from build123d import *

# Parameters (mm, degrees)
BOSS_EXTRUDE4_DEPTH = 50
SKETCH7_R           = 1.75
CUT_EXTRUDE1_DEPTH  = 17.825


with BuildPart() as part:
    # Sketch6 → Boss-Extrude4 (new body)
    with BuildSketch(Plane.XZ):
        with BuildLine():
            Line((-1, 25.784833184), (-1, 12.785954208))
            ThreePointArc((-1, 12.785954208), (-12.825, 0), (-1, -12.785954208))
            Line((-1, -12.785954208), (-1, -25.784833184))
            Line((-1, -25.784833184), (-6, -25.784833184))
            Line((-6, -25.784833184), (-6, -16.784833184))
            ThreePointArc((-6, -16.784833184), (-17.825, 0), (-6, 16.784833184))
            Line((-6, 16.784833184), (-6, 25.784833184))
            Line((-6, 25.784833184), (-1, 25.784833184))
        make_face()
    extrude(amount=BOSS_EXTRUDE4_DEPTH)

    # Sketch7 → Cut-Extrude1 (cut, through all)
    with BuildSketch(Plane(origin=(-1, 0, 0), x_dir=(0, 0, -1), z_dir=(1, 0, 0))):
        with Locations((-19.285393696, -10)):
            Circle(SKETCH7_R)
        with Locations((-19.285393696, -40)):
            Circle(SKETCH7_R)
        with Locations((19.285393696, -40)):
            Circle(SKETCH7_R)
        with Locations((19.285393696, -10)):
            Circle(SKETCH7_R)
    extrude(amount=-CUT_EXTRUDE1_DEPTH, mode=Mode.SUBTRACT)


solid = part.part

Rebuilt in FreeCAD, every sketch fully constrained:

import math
import FreeCAD as App
import Part
import Sketcher

V = App.Vector
Q = App.Units.Quantity

doc = App.newDocument("Part")
body = doc.addObject("PartDesign::Body", "Body")

# Sketch on XZ plane
sketch1 = body.newObject("Sketcher::SketchObject", "Sketch")
sketch1.AttachmentSupport = (doc.getObject("XZ_Plane"), [""])
sketch1.MapMode = "FlatFace"
sketch1.addGeometry(Part.LineSegment(V(-1, 13, 0), V(-1, 26, 0)), False)
sketch1.addGeometry(Part.LineSegment(V(-1, 26, 0), V(-6, 26, 0)), False)
sketch1.addGeometry(Part.LineSegment(V(-6, 26, 0), V(-6, 17, 0)), False)
sketch1.addGeometry(Part.ArcOfCircle(Part.Circle(V(0, 0, 0), V(0, 0, 1), 18), math.radians(110), math.radians(250)), False)
sketch1.addGeometry(Part.LineSegment(V(-6, -17, 0), V(-6, -26, 0)), False)
sketch1.addGeometry(Part.LineSegment(V(-6, -26, 0), V(-1, -26, 0)), False)
sketch1.addGeometry(Part.LineSegment(V(-1, -26, 0), V(-1, -13, 0)), False)
sketch1.addGeometry(Part.ArcOfCircle(Part.Circle(V(0, 0, 0), V(0, 0, 1), 13), math.radians(94), math.radians(266)), False)
sketch1.addConstraint(Sketcher.Constraint("Coincident", 0, 2, 1, 1))
sketch1.addConstraint(Sketcher.Constraint("Coincident", 1, 2, 2, 1))
sketch1.addConstraint(Sketcher.Constraint("Coincident", 2, 2, 3, 1))
sketch1.addConstraint(Sketcher.Constraint("Coincident", 3, 2, 4, 1))
sketch1.addConstraint(Sketcher.Constraint("Coincident", 4, 2, 5, 1))
sketch1.addConstraint(Sketcher.Constraint("Coincident", 5, 2, 6, 1))
sketch1.addConstraint(Sketcher.Constraint("Coincident", 6, 2, 7, 2))
sketch1.addConstraint(Sketcher.Constraint("Coincident", 7, 1, 0, 1))
sketch1.addConstraint(Sketcher.Constraint("Vertical", 0))
sketch1.addConstraint(Sketcher.Constraint("Horizontal", 1))
sketch1.addConstraint(Sketcher.Constraint("Vertical", 2))
sketch1.addConstraint(Sketcher.Constraint("Vertical", 4))
sketch1.addConstraint(Sketcher.Constraint("Horizontal", 5))
sketch1.addConstraint(Sketcher.Constraint("Vertical", 6))
sketch1.addConstraint(Sketcher.Constraint("Coincident", 3, 3, -1, 1))
sketch1.addConstraint(Sketcher.Constraint("Coincident", 7, 3, -1, 1))
sketch1.addConstraint(Sketcher.Constraint("Symmetric", 1, 2, 4, 2, -1))
sketch1.addConstraint(Sketcher.Constraint("Vertical", 0, 2, 5, 2))
sketch1.addConstraint(Sketcher.Constraint("DistanceX", 1, 2, 1, 1, Q("5 mm")))
sketch1.addConstraint(Sketcher.Constraint("DistanceY", 2, 2, 2, 1, Q("9 mm")))
sketch1.addConstraint(Sketcher.Constraint("DistanceX", 0, 2, -1, 1, Q("1 mm")))
sketch1.addConstraint(Sketcher.Constraint("Radius", 3, Q("17.825 mm")))
sketch1.addConstraint(Sketcher.Constraint("Radius", 7, Q("12.825 mm")))
pad1 = body.newObject("PartDesign::Pad", "Pad")
pad1.Profile = sketch1
pad1.Length = 50

# Sketch on YZ plane
sketch2 = body.newObject("Sketcher::SketchObject", "Sketch001")
sketch2.AttachmentSupport = (doc.getObject("YZ_Plane"), [""])
sketch2.MapMode = "FlatFace"
sketch2.AttachmentOffset = App.Placement(V(0, 0, -1), App.Rotation())
sketch2.addGeometry(Part.Circle(V(-10, 19.3, 0), V(0, 0, 1), 1.8), False)
sketch2.addGeometry(Part.Circle(V(-40, 19.3, 0), V(0, 0, 1), 1.8), False)
sketch2.addGeometry(Part.Circle(V(-40, -19.3, 0), V(0, 0, 1), 1.8), False)
sketch2.addGeometry(Part.Circle(V(-10, -19.3, 0), V(0, 0, 1), 1.8), False)
sketch2.addConstraint(Sketcher.Constraint("Equal", 0, 1))
sketch2.addConstraint(Sketcher.Constraint("Equal", 1, 2))
sketch2.addConstraint(Sketcher.Constraint("Equal", 2, 3))
sketch2.addConstraint(Sketcher.Constraint("Symmetric", 1, 3, 2, 3, -1))
sketch2.addConstraint(Sketcher.Constraint("Symmetric", 0, 3, 3, 3, -1))
sketch2.addConstraint(Sketcher.Constraint("Horizontal", 0, 3, 1, 3))
sketch2.addConstraint(Sketcher.Constraint("Diameter", 0, Q("3.5 mm")))
sketch2.addConstraint(Sketcher.Constraint("DistanceX", 0, 3, -1, 1, Q("10 mm")))
sketch2.addConstraint(Sketcher.Constraint("DistanceX", 1, 3, -1, 1, Q("40 mm")))
sketch2.addConstraint(Sketcher.Constraint("DistanceY", -1, 1, 0, 3, Q("19.285394 mm")))
pocket1 = body.newObject("PartDesign::Pocket", "Pocket")
pocket1.Profile = sketch2
pocket1.Type = "ThroughAll"

doc.recompute()
